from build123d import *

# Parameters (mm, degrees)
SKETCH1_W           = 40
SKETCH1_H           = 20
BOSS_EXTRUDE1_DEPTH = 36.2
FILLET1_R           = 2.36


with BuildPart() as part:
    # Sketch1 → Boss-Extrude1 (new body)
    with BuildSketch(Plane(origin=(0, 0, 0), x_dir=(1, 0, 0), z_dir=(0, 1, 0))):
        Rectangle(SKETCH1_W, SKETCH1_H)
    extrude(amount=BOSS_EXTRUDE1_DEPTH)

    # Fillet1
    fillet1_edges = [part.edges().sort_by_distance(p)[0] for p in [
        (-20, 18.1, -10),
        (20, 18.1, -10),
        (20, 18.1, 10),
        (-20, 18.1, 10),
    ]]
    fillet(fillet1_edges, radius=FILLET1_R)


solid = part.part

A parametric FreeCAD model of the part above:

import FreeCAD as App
import Part
import Sketcher

V = App.Vector


def edges_at(feature, points):
    """Names of the edges that pass closest to the given points."""
    edges = feature.Shape.Edges
    near = lambda p: min(range(len(edges)), key=lambda i: edges[i].distToShape(Part.Vertex(*p))[0])
    return sorted({f"Edge{near(p) + 1}" for p in points})

doc = App.newDocument("Part")
body = doc.addObject("PartDesign::Body", "Body")

# Sketch on XZ plane
sketch1 = doc.addObject("Sketcher::SketchObject", "Sketch")
body.addObject(sketch1)
sketch1.AttachmentSupport = (doc.XZ_Plane, [""])
sketch1.MapMode = "FlatFace"
sketch1.addGeometry([
    Part.LineSegment(V(-20, -10, 0), V(-20, 10, 0)),
    Part.LineSegment(V(-20, 10, 0), V(20, 10, 0)),
    Part.LineSegment(V(20, 10, 0), V(20, -10, 0)),
    Part.LineSegment(V(20, -10, 0), V(-20, -10, 0)),
], False)
sketch1.addConstraint([
    Sketcher.Constraint("Coincident", 0, 2, 1, 1),
    Sketcher.Constraint("Coincident", 1, 2, 2, 1),
    Sketcher.Constraint("Coincident", 2, 2, 3, 1),
    Sketcher.Constraint("Coincident", 3, 2, 0, 1),
    Sketcher.Constraint("Vertical", 0),
    Sketcher.Constraint("Horizontal", 1),
    Sketcher.Constraint("Vertical", 2),
    Sketcher.Constraint("Horizontal", 3),
    Sketcher.Constraint("Symmetric", 0, 2, 2, 2, -1, 1),
    Sketcher.Constraint("DistanceX", 1, 1, 1, 2, 40.0),
    Sketcher.Constraint("DistanceY", 0, 1, 0, 2, 20.0),
])
pad1 = doc.addObject("PartDesign::Pad", "Pad")
body.addObject(pad1)
pad1.Profile = sketch1
pad1.Length = 36.2
pad1.Reversed = True
doc.recompute()

fillet = doc.addObject("PartDesign::Fillet", "Fillet")
body.addObject(fillet)
fillet.Base = (pad1, edges_at(pad1, [
    (-20, 18.1, -10),
    (20, 18.1, -10),
    (20, 18.1, 10),
    (-20, 18.1, 10),
]))
fillet.Radius = 2.36

doc.recompute()
